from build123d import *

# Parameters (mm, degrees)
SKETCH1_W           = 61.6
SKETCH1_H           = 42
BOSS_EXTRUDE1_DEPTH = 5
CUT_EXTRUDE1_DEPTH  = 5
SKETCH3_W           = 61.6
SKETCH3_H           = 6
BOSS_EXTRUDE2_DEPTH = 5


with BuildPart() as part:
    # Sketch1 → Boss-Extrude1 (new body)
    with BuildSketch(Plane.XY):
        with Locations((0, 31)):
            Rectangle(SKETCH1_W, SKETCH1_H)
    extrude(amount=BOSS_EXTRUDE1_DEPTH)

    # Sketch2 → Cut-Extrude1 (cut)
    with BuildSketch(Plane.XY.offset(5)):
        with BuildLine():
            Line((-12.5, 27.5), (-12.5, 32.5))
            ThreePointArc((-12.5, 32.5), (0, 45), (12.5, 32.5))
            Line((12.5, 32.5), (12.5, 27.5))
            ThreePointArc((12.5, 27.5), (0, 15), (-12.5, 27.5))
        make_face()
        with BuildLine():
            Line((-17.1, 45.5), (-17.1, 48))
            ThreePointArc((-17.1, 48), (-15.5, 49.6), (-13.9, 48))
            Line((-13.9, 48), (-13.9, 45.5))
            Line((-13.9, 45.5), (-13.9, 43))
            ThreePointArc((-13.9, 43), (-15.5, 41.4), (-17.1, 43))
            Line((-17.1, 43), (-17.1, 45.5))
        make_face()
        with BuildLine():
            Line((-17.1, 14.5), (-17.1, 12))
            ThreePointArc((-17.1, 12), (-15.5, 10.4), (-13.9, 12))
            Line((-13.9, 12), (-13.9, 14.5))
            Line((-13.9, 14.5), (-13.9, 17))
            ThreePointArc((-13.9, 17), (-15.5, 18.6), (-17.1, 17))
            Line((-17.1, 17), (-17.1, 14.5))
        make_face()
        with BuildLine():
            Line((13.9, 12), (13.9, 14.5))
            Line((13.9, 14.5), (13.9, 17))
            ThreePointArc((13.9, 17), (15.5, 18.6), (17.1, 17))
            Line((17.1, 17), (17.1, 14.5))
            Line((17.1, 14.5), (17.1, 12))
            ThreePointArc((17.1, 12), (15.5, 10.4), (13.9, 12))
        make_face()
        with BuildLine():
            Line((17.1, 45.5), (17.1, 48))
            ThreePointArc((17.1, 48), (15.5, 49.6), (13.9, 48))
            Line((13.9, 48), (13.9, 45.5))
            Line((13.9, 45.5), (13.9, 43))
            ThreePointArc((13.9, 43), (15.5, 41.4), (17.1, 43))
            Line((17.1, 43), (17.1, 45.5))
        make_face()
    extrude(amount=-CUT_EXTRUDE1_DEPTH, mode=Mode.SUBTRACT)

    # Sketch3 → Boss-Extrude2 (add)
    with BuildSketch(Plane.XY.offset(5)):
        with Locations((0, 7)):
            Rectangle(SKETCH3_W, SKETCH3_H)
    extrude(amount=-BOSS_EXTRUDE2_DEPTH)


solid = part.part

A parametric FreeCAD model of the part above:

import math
import FreeCAD as App
import Part
import Sketcher

doc = App.newDocument("Part")
body = doc.addObject("PartDesign::Body", "Body")

sketch1 = doc.addObject("Sketcher::SketchObject", "Sketch")
body.addObject(sketch1)
sketch1.AttachmentSupport = (doc.XY_Plane, [""])
sketch1.MapMode = "FlatFace"
sketch1.addGeometry(Part.LineSegment(App.Vector(-31, 52, 0), App.Vector(-31, 10, 0)), False)
sketch1.addGeometry(Part.LineSegment(App.Vector(-31, 10, 0), App.Vector(31, 10, 0)), False)
sketch1.addGeometry(Part.LineSegment(App.Vector(31, 10, 0), App.Vector(31, 52, 0)), False)
sketch1.addGeometry(Part.LineSegment(App.Vector(31, 52, 0), App.Vector(-31, 52, 0)), False)
sketch1.addConstraint(Sketcher.Constraint("Coincident", 0, 2, 1, 1))
sketch1.addConstraint(Sketcher.Constraint("Coincident", 1, 2, 2, 1))
sketch1.addConstraint(Sketcher.Constraint("Coincident", 2, 2, 3, 1))
sketch1.addConstraint(Sketcher.Constraint("Coincident", 3, 2, 0, 1))
sketch1.addConstraint(Sketcher.Constraint("Vertical", 0))
sketch1.addConstraint(Sketcher.Constraint("Horizontal", 1))
sketch1.addConstraint(Sketcher.Constraint("Vertical", 2))
sketch1.addConstraint(Sketcher.Constraint("Horizontal", 3))
sketch1.addConstraint(Sketcher.Constraint("DistanceY", 0, 2, 0, 1, 42.0))
sketch1.addConstraint(Sketcher.Constraint("DistanceX", 1, 1, 1, 2, 61.6))
sketch1.addConstraint(Sketcher.Constraint("DistanceY", -1, 1, 0, 2, 10.0))
sketch1.addConstraint(Sketcher.Constraint("DistanceX", 0, 2, -1, 1, 30.8))
pad1 = doc.addObject("PartDesign::Pad", "Pad")
body.addObject(pad1)
pad1.Profile = sketch1
pad1.Length = 5

sketch2 = doc.addObject("Sketcher::SketchObject", "Sketch001")
body.addObject(sketch2)
sketch2.AttachmentSupport = (doc.XY_Plane, [""])
sketch2.MapMode = "FlatFace"
sketch2.AttachmentOffset = App.Placement(App.Vector(0, 0, 5), App.Rotation())
sketch2.addGeometry(Part.LineSegment(App.Vector(-12.5, 32.5, 0), App.Vector(-12.5, 27.5, 0)), False)
sketch2.addGeometry(Part.ArcOfCircle(Part.Circle(App.Vector(0, 27.5, 0), App.Vector(0, 0, 1), 12.5), math.radians(180), math.radians(360)), False)
sketch2.addGeometry(Part.LineSegment(App.Vector(12.5, 27.5, 0), App.Vector(12.5, 32.5, 0)), False)
sketch2.addGeometry(Part.ArcOfCircle(Part.Circle(App.Vector(0, 32.5, 0), App.Vector(0, 0, 1), 12.5), math.radians(0), math.radians(180)), False)
sketch2.addGeometry(Part.ArcOfCircle(Part.Circle(App.Vector(-15.5, 48, 0), App.Vector(0, 0, 1), 1.6), math.radians(0), math.radians(180)), False)
sketch2.addGeometry(Part.LineSegment(App.Vector(-17.1, 48, 0), App.Vector(-17.1, 43, 0)), False)
sketch2.addGeometry(Part.ArcOfCircle(Part.Circle(App.Vector(-15.5, 43, 0), App.Vector(0, 0, 1), 1.6), math.radians(180), math.radians(360)), False)
sketch2.addGeometry(Part.LineSegment(App.Vector(-13.9, 43, 0), App.Vector(-13.9, 48, 0)), False)
sketch2.addGeometry(Part.ArcOfCircle(Part.Circle(App.Vector(-15.5, 12, 0), App.Vector(0, 0, 1), 1.6), math.radians(180), math.radians(360)), False)
sketch2.addGeometry(Part.LineSegment(App.Vector(-13.9, 12, 0), App.Vector(-13.9, 17, 0)), False)
sketch2.addGeometry(Part.ArcOfCircle(Part.Circle(App.Vector(-15.5, 17, 0), App.Vector(0, 0, 1), 1.6), math.radians(0), math.radians(180)), False)
sketch2.addGeometry(Part.LineSegment(App.Vector(-17.1, 17, 0), App.Vector(-17.1, 12, 0)), False)
sketch2.addGeometry(Part.LineSegment(App.Vector(13.9, 17, 0), App.Vector(13.9, 12, 0)), False)
sketch2.addGeometry(Part.ArcOfCircle(Part.Circle(App.Vector(15.5, 12, 0), App.Vector(0, 0, 1), 1.6), math.radians(180), math.radians(360)), False)
sketch2.addGeometry(Part.LineSegment(App.Vector(17.1, 12, 0), App.Vector(17.1, 17, 0)), False)
sketch2.addGeometry(Part.ArcOfCircle(Part.Circle(App.Vector(15.5, 17, 0), App.Vector(0, 0, 1), 1.6), math.radians(0), math.radians(180)), False)
sketch2.addGeometry(Part.ArcOfCircle(Part.Circle(App.Vector(15.5, 48, 0), App.Vector(0, 0, 1), 1.6), math.radians(0), math.radians(180)), False)
sketch2.addGeometry(Part.LineSegment(App.Vector(13.9, 48, 0), App.Vector(13.9, 43, 0)), False)
sketch2.addGeometry(Part.ArcOfCircle(Part.Circle(App.Vector(15.5, 43, 0), App.Vector(0, 0, 1), 1.6), math.radians(180), math.radians(360)), False)
sketch2.addGeometry(Part.LineSegment(App.Vector(17.1, 43, 0), App.Vector(17.1, 48, 0)), False)
sketch2.addConstraint(Sketcher.Constraint("Tangent", 0, 2, 1, 1))
sketch2.addConstraint(Sketcher.Constraint("Tangent", 1, 2, 2, 1))
sketch2.addConstraint(Sketcher.Constraint("Tangent", 2, 2, 3, 1))
sketch2.addConstraint(Sketcher.Constraint("Tangent", 3, 2, 0, 1))
sketch2.addConstraint(Sketcher.Constraint("Tangent", 4, 2, 5, 1))
sketch2.addConstraint(Sketcher.Constraint("Tangent", 5, 2, 6, 1))
sketch2.addConstraint(Sketcher.Constraint("Tangent", 6, 2, 7, 1))
sketch2.addConstraint(Sketcher.Constraint("Tangent", 7, 2, 4, 1))
sketch2.addConstraint(Sketcher.Constraint("Tangent", 8, 2, 9, 1))
sketch2.addConstraint(Sketcher.Constraint("Tangent", 9, 2, 10, 1))
sketch2.addConstraint(Sketcher.Constraint("Tangent", 10, 2, 11, 1))
sketch2.addConstraint(Sketcher.Constraint("Tangent", 11, 2, 8, 1))
sketch2.addConstraint(Sketcher.Constraint("Tangent", 12, 2, 13, 1))
sketch2.addConstraint(Sketcher.Constraint("Tangent", 13, 2, 14, 1))
sketch2.addConstraint(Sketcher.Constraint("Tangent", 14, 2, 15, 1))
sketch2.addConstraint(Sketcher.Constraint("Tangent", 15, 2, 12, 1))
sketch2.addConstraint(Sketcher.Constraint("Tangent", 16, 2, 17, 1))
sketch2.addConstraint(Sketcher.Constraint("Tangent", 17, 2, 18, 1))
sketch2.addConstraint(Sketcher.Constraint("Tangent", 18, 2, 19, 1))
sketch2.addConstraint(Sketcher.Constraint("Tangent", 19, 2, 16, 1))
sketch2.addConstraint(Sketcher.Constraint("Vertical", 0))
sketch2.addConstraint(Sketcher.Constraint("Vertical", 2))
sketch2.addConstraint(Sketcher.Constraint("Vertical", 5))
sketch2.addConstraint(Sketcher.Constraint("Vertical", 7))
sketch2.addConstraint(Sketcher.Constraint("Vertical", 9))
sketch2.addConstraint(Sketcher.Constraint("Vertical", 11))
sketch2.addConstraint(Sketcher.Constraint("Vertical", 12))
sketch2.addConstraint(Sketcher.Constraint("Vertical", 14))
sketch2.addConstraint(Sketcher.Constraint("Vertical", 17))
sketch2.addConstraint(Sketcher.Constraint("Vertical", 19))
sketch2.addConstraint(Sketcher.Constraint("Equal", 6, 8))
sketch2.addConstraint(Sketcher.Constraint("Equal", 10, 13))
sketch2.addConstraint(Sketcher.Constraint("Equal", 15, 16))
sketch2.addConstraint(Sketcher.Constraint("Symmetric", 8, 3, 13, 3, -2))
sketch2.addConstraint(Sketcher.Constraint("Symmetric", 4, 3, 16, 3, -2))
sketch2.addConstraint(Sketcher.Constraint("PointOnObject", 1, 3, -2))
sketch2.addConstraint(Sketcher.Constraint("Horizontal", 10, 3, 15, 3))
sketch2.addConstraint(Sketcher.Constraint("Horizontal", 6, 3, 18, 3))
sketch2.addConstraint(Sketcher.Constraint("Vertical", 6, 3, 8, 3))
sketch2.addConstraint(Sketcher.Constraint("Equal", 2, 5))
sketch2.addConstraint(Sketcher.Constraint("Equal", 7, 9))
sketch2.addConstraint(Sketcher.Constraint("Radius", 1, 12.5))
sketch2.addConstraint(Sketcher.Constraint("Radius", 4, 1.6))
sketch2.addConstraint(Sketcher.Constraint("DistanceY", 0, 2, 0, 1, 5.0))
sketch2.addConstraint(Sketcher.Constraint("DistanceY", -1, 1, 4, 3, 48.0))
sketch2.addConstraint(Sketcher.Constraint("DistanceY", -1, 1, 8, 3, 12.0))
sketch2.addConstraint(Sketcher.Constraint("DistanceX", 8, 3, 13, 3, 31.0))
sketch2.addConstraint(Sketcher.Constraint("DistanceY", -1, 1, 1, 3, 27.5))
pocket1 = doc.addObject("PartDesign::Pocket", "Pocket")
body.addObject(pocket1)
pocket1.Profile = sketch2
pocket1.Length = 5

sketch3 = doc.addObject("Sketcher::SketchObject", "Sketch002")
body.addObject(sketch3)
sketch3.AttachmentSupport = (doc.XY_Plane, [""])
sketch3.MapMode = "FlatFace"
sketch3.AttachmentOffset = App.Placement(App.Vector(0, 0, 5), App.Rotation())
sketch3.addGeometry(Part.LineSegment(App.Vector(-31, 10, 0), App.Vector(-31, 4, 0)), False)
sketch3.addGeometry(Part.LineSegment(App.Vector(-31, 4, 0), App.Vector(31, 4, 0)), False)
sketch3.addGeometry(Part.LineSegment(App.Vector(31, 4, 0), App.Vector(31, 10, 0)), False)
sketch3.addGeometry(Part.LineSegment(App.Vector(31, 10, 0), App.Vector(-31, 10, 0)), False)
sketch3.addConstraint(Sketcher.Constraint("Coincident", 0, 2, 1, 1))
sketch3.addConstraint(Sketcher.Constraint("Coincident", 1, 2, 2, 1))
sketch3.addConstraint(Sketcher.Constraint("Coincident", 2, 2, 3, 1))
sketch3.addConstraint(Sketcher.Constraint("Coincident", 3, 2, 0, 1))
sketch3.addConstraint(Sketcher.Constraint("Vertical", 0))
sketch3.addConstraint(Sketcher.Constraint("Horizontal", 1))
sketch3.addConstraint(Sketcher.Constraint("Vertical", 2))
sketch3.addConstraint(Sketcher.Constraint("Horizontal", 3))
sketch3.addConstraint(Sketcher.Constraint("DistanceY", 0, 2, 0, 1, 6.0))
sketch3.addConstraint(Sketcher.Constraint("DistanceX", 1, 1, 1, 2, 61.6))
sketch3.addConstraint(Sketcher.Constraint("DistanceY", -1, 1, 0, 2, 4.0))
sketch3.addConstraint(Sketcher.Constraint("DistanceX", 0, 2, -1, 1, 30.8))
pad2 = doc.addObject("PartDesign::Pad", "Pad001")
body.addObject(pad2)
pad2.Profile = sketch3
pad2.Length = 5
pad2.Reversed = True

doc.recompute()
